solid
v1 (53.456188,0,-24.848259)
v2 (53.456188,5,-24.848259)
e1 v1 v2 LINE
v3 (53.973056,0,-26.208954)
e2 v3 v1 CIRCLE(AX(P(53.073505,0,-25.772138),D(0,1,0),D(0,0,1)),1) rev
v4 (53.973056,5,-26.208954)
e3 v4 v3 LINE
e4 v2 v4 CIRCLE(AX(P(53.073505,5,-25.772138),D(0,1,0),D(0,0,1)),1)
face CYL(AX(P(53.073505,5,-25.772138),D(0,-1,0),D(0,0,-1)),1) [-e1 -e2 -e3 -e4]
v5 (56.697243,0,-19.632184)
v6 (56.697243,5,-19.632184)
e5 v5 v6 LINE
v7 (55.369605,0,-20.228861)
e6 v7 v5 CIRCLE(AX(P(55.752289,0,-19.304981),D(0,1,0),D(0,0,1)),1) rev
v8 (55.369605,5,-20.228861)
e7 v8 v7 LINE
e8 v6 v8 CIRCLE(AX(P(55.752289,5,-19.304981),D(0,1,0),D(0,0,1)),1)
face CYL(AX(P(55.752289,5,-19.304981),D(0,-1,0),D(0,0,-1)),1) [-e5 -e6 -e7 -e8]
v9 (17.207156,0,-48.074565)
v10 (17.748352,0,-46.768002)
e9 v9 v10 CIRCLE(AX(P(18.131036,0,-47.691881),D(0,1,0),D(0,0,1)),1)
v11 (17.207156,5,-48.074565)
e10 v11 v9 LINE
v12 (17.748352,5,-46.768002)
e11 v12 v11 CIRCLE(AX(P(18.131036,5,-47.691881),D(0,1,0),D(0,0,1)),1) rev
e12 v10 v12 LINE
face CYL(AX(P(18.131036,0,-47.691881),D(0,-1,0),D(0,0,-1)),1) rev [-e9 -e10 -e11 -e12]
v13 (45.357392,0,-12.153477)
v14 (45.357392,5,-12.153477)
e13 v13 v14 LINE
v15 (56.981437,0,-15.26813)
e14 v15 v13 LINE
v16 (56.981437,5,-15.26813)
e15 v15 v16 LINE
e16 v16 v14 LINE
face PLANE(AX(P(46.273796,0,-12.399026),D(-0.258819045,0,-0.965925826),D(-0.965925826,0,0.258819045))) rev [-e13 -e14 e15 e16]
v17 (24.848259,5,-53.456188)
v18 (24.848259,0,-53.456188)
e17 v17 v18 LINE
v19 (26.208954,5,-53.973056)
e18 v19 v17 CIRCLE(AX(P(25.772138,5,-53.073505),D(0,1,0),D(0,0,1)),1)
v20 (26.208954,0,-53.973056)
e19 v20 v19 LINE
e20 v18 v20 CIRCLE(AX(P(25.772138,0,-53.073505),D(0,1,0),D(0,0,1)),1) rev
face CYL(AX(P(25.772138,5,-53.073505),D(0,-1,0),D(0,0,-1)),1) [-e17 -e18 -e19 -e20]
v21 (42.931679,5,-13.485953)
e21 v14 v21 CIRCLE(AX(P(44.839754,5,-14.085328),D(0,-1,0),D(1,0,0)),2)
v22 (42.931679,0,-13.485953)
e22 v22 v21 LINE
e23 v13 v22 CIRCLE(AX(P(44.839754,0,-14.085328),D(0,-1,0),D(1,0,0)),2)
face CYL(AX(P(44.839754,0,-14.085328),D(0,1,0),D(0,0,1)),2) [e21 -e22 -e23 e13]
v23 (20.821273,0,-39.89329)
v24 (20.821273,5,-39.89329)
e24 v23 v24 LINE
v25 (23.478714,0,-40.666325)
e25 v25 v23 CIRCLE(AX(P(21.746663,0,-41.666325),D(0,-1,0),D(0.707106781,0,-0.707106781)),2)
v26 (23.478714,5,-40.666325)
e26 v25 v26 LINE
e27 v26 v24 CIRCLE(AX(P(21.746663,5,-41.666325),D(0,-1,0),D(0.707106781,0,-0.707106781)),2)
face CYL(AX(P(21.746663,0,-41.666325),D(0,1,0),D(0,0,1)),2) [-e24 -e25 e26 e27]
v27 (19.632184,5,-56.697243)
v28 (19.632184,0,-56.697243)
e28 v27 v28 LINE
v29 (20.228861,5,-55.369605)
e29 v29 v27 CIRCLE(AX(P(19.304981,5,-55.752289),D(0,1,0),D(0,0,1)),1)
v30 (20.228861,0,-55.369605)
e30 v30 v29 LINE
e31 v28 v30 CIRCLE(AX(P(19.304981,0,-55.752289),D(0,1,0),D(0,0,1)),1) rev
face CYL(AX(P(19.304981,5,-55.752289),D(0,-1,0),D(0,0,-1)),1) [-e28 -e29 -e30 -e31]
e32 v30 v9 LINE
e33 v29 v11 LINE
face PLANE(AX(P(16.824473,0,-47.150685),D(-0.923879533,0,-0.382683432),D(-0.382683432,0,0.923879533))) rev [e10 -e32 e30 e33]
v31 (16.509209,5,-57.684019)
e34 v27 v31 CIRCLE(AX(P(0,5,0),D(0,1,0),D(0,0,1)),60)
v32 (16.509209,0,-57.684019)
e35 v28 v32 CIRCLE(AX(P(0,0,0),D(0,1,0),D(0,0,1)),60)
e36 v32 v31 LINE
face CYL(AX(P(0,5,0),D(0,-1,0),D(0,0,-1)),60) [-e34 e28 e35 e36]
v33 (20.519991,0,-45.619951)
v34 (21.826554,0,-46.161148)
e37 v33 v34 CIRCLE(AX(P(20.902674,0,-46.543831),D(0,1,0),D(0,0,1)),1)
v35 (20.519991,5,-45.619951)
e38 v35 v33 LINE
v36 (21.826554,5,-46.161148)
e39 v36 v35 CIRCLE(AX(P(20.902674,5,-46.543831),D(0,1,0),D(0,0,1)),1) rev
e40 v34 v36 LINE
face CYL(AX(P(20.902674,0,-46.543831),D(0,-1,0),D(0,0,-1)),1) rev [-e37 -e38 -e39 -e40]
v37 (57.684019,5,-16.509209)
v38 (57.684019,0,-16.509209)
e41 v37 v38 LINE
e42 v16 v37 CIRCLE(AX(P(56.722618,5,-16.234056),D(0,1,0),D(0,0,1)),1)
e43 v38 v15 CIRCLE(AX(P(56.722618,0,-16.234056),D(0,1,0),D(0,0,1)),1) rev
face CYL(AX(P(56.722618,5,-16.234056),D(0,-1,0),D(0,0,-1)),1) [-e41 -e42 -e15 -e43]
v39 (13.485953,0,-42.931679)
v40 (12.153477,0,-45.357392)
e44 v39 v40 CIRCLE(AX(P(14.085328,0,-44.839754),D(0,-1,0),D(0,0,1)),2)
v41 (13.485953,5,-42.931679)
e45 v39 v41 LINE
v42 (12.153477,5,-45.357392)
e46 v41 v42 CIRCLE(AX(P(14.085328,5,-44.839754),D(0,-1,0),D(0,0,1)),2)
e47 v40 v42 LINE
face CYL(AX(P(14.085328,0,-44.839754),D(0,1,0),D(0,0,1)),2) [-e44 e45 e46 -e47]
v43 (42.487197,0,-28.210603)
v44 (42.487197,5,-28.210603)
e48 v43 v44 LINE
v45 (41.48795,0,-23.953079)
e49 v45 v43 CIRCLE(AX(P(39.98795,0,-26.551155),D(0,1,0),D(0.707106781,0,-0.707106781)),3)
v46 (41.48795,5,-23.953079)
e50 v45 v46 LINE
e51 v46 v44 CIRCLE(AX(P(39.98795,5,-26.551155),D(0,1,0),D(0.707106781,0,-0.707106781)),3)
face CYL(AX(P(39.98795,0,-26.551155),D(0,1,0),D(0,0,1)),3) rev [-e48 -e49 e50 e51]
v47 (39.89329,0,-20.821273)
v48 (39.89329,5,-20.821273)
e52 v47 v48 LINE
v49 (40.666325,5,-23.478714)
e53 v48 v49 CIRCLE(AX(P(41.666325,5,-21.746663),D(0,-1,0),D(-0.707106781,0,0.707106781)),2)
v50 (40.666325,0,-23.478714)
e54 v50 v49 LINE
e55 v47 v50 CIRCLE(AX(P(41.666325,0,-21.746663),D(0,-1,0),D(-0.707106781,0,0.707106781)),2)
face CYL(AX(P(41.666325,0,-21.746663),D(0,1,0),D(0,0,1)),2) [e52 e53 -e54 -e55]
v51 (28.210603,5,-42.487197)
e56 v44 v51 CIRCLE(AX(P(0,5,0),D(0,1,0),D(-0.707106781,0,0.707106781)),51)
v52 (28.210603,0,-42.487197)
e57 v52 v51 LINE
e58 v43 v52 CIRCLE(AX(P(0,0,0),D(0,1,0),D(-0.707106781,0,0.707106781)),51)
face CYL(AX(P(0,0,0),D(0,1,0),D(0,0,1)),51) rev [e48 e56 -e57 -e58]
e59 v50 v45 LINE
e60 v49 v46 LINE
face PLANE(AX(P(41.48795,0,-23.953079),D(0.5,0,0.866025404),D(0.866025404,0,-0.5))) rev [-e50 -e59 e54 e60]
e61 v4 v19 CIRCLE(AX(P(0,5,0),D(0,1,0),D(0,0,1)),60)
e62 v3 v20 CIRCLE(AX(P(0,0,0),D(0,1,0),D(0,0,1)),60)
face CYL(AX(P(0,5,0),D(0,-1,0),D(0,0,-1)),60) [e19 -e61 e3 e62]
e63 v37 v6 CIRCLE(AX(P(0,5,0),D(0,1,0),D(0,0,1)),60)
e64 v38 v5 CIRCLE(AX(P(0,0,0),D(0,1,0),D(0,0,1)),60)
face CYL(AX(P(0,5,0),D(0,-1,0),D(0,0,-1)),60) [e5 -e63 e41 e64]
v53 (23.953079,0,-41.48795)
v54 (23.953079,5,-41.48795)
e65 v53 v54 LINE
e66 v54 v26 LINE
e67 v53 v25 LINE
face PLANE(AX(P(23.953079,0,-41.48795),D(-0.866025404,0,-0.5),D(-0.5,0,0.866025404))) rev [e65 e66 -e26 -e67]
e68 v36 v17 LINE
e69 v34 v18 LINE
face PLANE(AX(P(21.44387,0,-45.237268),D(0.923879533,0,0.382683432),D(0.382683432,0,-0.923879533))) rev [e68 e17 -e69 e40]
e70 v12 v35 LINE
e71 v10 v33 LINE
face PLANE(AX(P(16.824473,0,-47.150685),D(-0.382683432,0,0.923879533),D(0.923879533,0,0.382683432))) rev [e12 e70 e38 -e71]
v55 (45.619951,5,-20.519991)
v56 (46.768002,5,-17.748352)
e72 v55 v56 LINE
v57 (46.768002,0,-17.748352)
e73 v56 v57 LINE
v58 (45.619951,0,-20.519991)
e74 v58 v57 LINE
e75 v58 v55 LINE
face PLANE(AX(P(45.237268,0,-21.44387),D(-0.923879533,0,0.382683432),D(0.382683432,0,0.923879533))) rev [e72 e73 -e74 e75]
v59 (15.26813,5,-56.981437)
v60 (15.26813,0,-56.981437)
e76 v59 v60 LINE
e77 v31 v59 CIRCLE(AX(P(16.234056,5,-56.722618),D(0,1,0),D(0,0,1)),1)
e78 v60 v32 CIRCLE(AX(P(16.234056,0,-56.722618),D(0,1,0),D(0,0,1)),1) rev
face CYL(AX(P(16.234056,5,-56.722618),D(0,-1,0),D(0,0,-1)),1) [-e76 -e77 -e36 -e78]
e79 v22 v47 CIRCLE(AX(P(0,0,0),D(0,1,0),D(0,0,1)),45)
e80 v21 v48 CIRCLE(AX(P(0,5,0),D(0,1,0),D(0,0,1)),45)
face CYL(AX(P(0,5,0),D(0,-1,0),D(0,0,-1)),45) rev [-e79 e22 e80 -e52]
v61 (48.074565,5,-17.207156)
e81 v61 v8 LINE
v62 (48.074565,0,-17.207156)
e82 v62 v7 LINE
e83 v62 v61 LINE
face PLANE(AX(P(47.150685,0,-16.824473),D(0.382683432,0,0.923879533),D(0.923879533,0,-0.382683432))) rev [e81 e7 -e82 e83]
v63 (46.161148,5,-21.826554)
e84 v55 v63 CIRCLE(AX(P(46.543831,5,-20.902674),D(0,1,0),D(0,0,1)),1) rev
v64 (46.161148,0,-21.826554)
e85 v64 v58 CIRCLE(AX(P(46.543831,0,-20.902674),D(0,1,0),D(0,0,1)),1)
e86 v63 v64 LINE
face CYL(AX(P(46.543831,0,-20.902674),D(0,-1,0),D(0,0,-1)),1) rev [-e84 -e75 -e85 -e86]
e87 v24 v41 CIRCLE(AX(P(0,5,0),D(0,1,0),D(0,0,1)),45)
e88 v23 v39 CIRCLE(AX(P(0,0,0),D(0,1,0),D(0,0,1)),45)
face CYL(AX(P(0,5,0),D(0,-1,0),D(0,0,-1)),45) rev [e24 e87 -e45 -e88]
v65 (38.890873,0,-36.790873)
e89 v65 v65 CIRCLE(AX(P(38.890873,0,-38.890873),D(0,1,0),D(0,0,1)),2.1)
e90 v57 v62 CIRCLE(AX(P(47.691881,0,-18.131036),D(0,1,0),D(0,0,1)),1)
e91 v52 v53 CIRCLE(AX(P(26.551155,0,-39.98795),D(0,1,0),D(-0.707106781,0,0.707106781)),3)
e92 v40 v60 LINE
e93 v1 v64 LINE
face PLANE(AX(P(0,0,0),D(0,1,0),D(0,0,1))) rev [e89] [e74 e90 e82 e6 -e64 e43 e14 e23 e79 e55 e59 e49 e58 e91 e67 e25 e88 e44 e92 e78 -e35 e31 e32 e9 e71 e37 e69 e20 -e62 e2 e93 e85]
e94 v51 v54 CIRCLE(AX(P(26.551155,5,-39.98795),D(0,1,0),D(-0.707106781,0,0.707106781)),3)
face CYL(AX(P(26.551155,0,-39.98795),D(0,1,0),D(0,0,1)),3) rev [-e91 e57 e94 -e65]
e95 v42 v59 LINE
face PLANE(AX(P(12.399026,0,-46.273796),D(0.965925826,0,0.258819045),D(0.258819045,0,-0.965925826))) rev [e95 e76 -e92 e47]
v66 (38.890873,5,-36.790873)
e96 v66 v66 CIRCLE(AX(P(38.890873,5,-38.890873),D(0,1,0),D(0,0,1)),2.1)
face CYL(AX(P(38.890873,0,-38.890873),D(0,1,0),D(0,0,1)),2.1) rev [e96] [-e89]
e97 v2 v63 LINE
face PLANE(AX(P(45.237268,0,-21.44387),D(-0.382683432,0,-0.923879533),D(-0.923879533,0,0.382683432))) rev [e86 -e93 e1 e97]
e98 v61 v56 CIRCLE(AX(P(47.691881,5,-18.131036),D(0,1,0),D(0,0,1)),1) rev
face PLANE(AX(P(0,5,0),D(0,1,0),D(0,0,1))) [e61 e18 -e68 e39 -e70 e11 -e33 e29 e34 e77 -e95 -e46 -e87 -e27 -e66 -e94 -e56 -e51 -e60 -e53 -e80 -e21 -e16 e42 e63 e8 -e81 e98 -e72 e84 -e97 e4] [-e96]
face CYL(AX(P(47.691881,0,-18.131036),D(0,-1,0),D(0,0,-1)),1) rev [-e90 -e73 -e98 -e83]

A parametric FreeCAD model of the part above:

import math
import FreeCAD as App
import Part
import Sketcher
from FreeCAD import Vector
Q = App.Units.Quantity


def edges_at(feature, points):
    """Names of the edges that pass closest to the given points."""
    edges = feature.Shape.Edges
    near = lambda p: min(range(len(edges)), key=lambda i: edges[i].distToShape(Part.Vertex(*p))[0])
    return sorted({f"Edge{near(p) + 1}" for p in points})

doc = App.newDocument("Part")
body = doc.addObject("PartDesign::Body", "Body")

sketch1 = doc.addObject("Sketcher::SketchObject", "Sketch")
body.addObject(sketch1)
sketch1.AttachmentSupport = (doc.XZ_Plane, [""])
sketch1.MapMode = "FlatFace"
sketch1.addGeometry([
    Part.Circle(Vector(0, 0, 0), Vector(0, 0, 1), 60),
    Part.Circle(Vector(0, 0, 0), Vector(0, 0, 1), 45),
], False)
sketch1.addConstraint([
    Sketcher.Constraint("Coincident", 0, 3, -1, 1),
    Sketcher.Constraint("Coincident", 1, 3, -1, 1),
    Sketcher.Constraint("Diameter", 0, 120.0),
    Sketcher.Constraint("Diameter", 1, 90.0),
])
pad1 = doc.addObject("PartDesign::Pad", "Pad")
body.addObject(pad1)
pad1.Profile = sketch1
pad1.Length = 5
pad1.Reversed = True

sketch2 = doc.addObject("Sketcher::SketchObject", "Sketch001")
body.addObject(sketch2)
sketch2.AttachmentSupport = (doc.XZ_Plane, [""])
sketch2.MapMode = "FlatFace"
sketch2.AttachmentOffset = App.Placement(Vector(0, 0, -5), App.Rotation())
sketch2.addGeometry([
    Part.LineSegment(Vector(12.153477, -45.357392, 0), Vector(12.399026, -46.273796, 0)),
    Part.ArcOfCircle(Part.Circle(Vector(9.501249, -47.050253, 0), Vector(0, 0, 1), 3), math.radians(-78.583322), math.radians(15)),
    Part.ArcOfCircle(Part.Circle(Vector(0, 0, 0), Vector(0, 0, 1), 51), math.radians(-101.416678), math.radians(-78.583322)),
    Part.ArcOfCircle(Part.Circle(Vector(-9.501249, -47.050253, 0), Vector(0, 0, 1), 3), math.radians(165), math.radians(258.583322)),
    Part.LineSegment(Vector(-12.399026, -46.273796, 0), Vector(-12.153477, -45.357392, 0)),
    Part.ArcOfCircle(Part.Circle(Vector(-14.085328, -44.839754, 0), Vector(0, 0, 1), 2), math.radians(-15), math.radians(72.561145)),
    Part.LineSegment(Vector(-13.485953, -42.931679, 0), Vector(13.485953, -42.931679, 0)),
    Part.ArcOfCircle(Part.Circle(Vector(14.085328, -44.839754, 0), Vector(0, 0, 1), 2), math.radians(107.438855), math.radians(195)),
], False)
sketch2.addConstraint([
    Sketcher.Constraint("Tangent", 0, 2, 1, 2),
    Sketcher.Constraint("Tangent", 1, 1, 2, 2),
    Sketcher.Constraint("Tangent", 2, 1, 3, 2),
    Sketcher.Constraint("Tangent", 3, 1, 4, 1),
    Sketcher.Constraint("Tangent", 4, 2, 5, 1),
    Sketcher.Constraint("Coincident", 5, 2, 6, 1),
    Sketcher.Constraint("Coincident", 6, 2, 7, 1),
    Sketcher.Constraint("Tangent", 7, 2, 0, 1),
    Sketcher.Constraint("Horizontal", 6),
    Sketcher.Constraint("Coincident", 2, 3, -1, 1),
    Sketcher.Constraint("Equal", 1, 3),
    Sketcher.Constraint("Equal", 5, 7),
    Sketcher.Constraint("Symmetric", 5, 3, 7, 3, -2),
    Sketcher.Constraint("Horizontal", 1, 3, 3, 3),
    Sketcher.Constraint("Radius", 1, 3.0),
    Sketcher.Constraint("Radius", 2, 51.0),
    Sketcher.Constraint("Radius", 5, 2.0),
    Sketcher.Constraint("Angle", 0, Q("-75 deg")),
    Sketcher.Constraint("DistanceY", 3, 3, 5, 3, 2.210499),
    Sketcher.Constraint("DistanceX", 3, 3, 6, 2, 22.987201),
    Sketcher.Constraint("DistanceX", 1, 1, 7, 2, 2.0584),
])
pocket1 = doc.addObject("PartDesign::Pocket", "Pocket")
body.addObject(pocket1)
pocket1.Profile = sketch2
pocket1.Type = "ThroughAll"
pocket1.Reversed = True
doc.recompute()

polarpattern = doc.addObject("PartDesign::PolarPattern", "PolarPattern")
body.addObject(polarpattern)
polarpattern.Originals = [pocket1]
polarpattern.Axis = (doc.Y_Axis, [""])
polarpattern.Angle = 360
polarpattern.Occurrences = 8
body.Tip = polarpattern

sketch3 = doc.addObject("Sketcher::SketchObject", "Sketch002")
body.addObject(sketch3)
sketch3.AttachmentSupport = (doc.XZ_Plane, [""])
sketch3.MapMode = "FlatFace"
sketch3.AttachmentOffset = App.Placement(Vector(0, 0, -5), App.Rotation())
sketch3.addGeometry(Part.Circle(Vector(38.890873, -38.890873, 0), Vector(0, 0, 1), 2.1), False)
sketch3.addConstraint([
    Sketcher.Constraint("Diameter", 0, 4.2),
    Sketcher.Constraint("DistanceX", -1, 1, 0, 3, 38.890873),
    Sketcher.Constraint("DistanceY", 0, 3, -1, 1, 38.890873),
])
pocket2 = doc.addObject("PartDesign::Pocket", "Pocket001")
body.addObject(pocket2)
pocket2.Profile = sketch3
pocket2.Type = "ThroughAll"
pocket2.Reversed = True
doc.recompute()

polarpattern2 = doc.addObject("PartDesign::PolarPattern", "PolarPattern001")
body.addObject(polarpattern2)
polarpattern2.Originals = [pocket2]
polarpattern2.Axis = (doc.Y_Axis, [""])
polarpattern2.Angle = 360
polarpattern2.Occurrences = 4
body.Tip = polarpattern2

sketch4 = doc.addObject("Sketcher::SketchObject", "Sketch003")
body.addObject(sketch4)
sketch4.AttachmentSupport = (doc.XZ_Plane, [""])
sketch4.MapMode = "FlatFace"
sketch4.AttachmentOffset = App.Placement(Vector(0, 0, -5), App.Rotation())
sketch4.addGeometry([
    Part.LineSegment(Vector(-77.978, -77.978, 0), Vector(-77.978, 77.978, 0)),
    Part.LineSegment(Vector(-77.978, 77.978, 0), Vector(77.978, 77.978, 0)),
    Part.LineSegment(Vector(77.978, 77.978, 0), Vector(77.978, -20.894142, 0)),
    Part.LineSegment(Vector(77.978, -20.894142, 0), Vector(0, 0, 0)),
    Part.LineSegment(Vector(0, 0, 0), Vector(20.894142, -77.978, 0)),
    Part.LineSegment(Vector(20.894142, -77.978, 0), Vector(-77.978, -77.978, 0)),
    Part.LineSegment(Vector(77.978, -77.978, 0), Vector(39.367643, -77.978, 0)),
    Part.LineSegment(Vector(39.367643, -77.978, 0), Vector(77.978, -39.367643, 0)),
    Part.LineSegment(Vector(77.978, -39.367643, 0), Vector(77.978, -77.978, 0)),
], False)
sketch4.addConstraint([
    Sketcher.Constraint("Coincident", 0, 2, 1, 1),
    Sketcher.Constraint("Coincident", 1, 2, 2, 1),
    Sketcher.Constraint("Coincident", 2, 2, 3, 1),
    Sketcher.Constraint("Coincident", 3, 2, 4, 1),
    Sketcher.Constraint("Coincident", 4, 2, 5, 1),
    Sketcher.Constraint("Coincident", 5, 2, 0, 1),
    Sketcher.Constraint("Coincident", 6, 2, 7, 1),
    Sketcher.Constraint("Coincident", 7, 2, 8, 1),
    Sketcher.Constraint("Coincident", 8, 2, 6, 1),
    Sketcher.Constraint("Vertical", 0),
    Sketcher.Constraint("Horizontal", 1),
    Sketcher.Constraint("Vertical", 2),
    Sketcher.Constraint("Horizontal", 5),
    Sketcher.Constraint("Horizontal", 6),
    Sketcher.Constraint("Vertical", 8),
    Sketcher.Constraint("Coincident", 3, 2, -1, 1),
    Sketcher.Constraint("Symmetric", 1, 2, 5, 2, -1, 1),
    Sketcher.Constraint("Symmetric", 0, 2, 8, 2, -1, 1),
    Sketcher.Constraint("Equal", 1, 0),
    Sketcher.Constraint("Equal", 5, 2),
    Sketcher.Constraint("Equal", 6, 8),
    Sketcher.Constraint("Angle", 3, Q("165 deg")),
    Sketcher.Constraint("DistanceX", 1, 1, 1, 2, 155.956),
    Sketcher.Constraint("DistanceX", 4, 2, 6, 2, 18.473501),
])
pocket3 = doc.addObject("PartDesign::Pocket", "Pocket002")
body.addObject(pocket3)
pocket3.Profile = sketch4
pocket3.Type = "ThroughAll"
pocket3.Reversed = True
doc.recompute()

fillet = doc.addObject("PartDesign::Fillet", "Fillet")
body.addObject(fillet)
fillet.Base = (pocket3, edges_at(pocket3, [(57.956, 2.5, -15.529), (15.529, 2.5, -57.956)]))
fillet.Radius = 1

sketch5 = doc.addObject("Sketcher::SketchObject", "Sketch004")
body.addObject(sketch5)
sketch5.AttachmentSupport = (doc.XZ_Plane, [""])
sketch5.MapMode = "FlatFace"
sketch5.AttachmentOffset = App.Placement(Vector(0, 0, -5), App.Rotation())
sketch5.addGeometry([
    Part.LineSegment(Vector(16.824473, -47.150685, 0), Vector(21.44387, -45.237268, 0)),
    Part.LineSegment(Vector(21.44387, -45.237268, 0), Vector(25.270705, -54.476063, 0)),
    Part.LineSegment(Vector(25.270705, -54.476063, 0), Vector(20.651307, -56.389481, 0)),
    Part.LineSegment(Vector(20.651307, -56.389481, 0), Vector(16.824473, -47.150685, 0)),
], False)
sketch5.addConstraint([
    Sketcher.Constraint("Coincident", 0, 2, 1, 1),
    Sketcher.Constraint("Coincident", 1, 2, 2, 1),
    Sketcher.Constraint("Coincident", 2, 2, 3, 1),
    Sketcher.Constraint("Coincident", 3, 2, 0, 1),
    Sketcher.Constraint("Perpendicular", 0, 1),
    Sketcher.Constraint("Perpendicular", 1, 2),
    Sketcher.Constraint("Perpendicular", 2, 3),
    Sketcher.Constraint("Distance", 0, 5.0),
    Sketcher.Constraint("Distance", 1, 10.0),
    Sketcher.Constraint("Angle", 0, Q("22.5 deg")),
    Sketcher.Constraint("DistanceX", -1, 1, 0, 2, 21.44387),
    Sketcher.Constraint("DistanceY", 0, 2, -1, 1, 45.237268),
])
pocket4 = doc.addObject("PartDesign::Pocket", "Pocket003")
body.addObject(pocket4)
pocket4.Profile = sketch5
pocket4.Type = "ThroughAll"
pocket4.Reversed = True
doc.recompute()

fillet2 = doc.addObject("PartDesign::Fillet", "Fillet001")
body.addObject(fillet2)
fillet2.Base = (pocket4, edges_at(pocket4, [
    (20.631, 2.5, -56.341),
    (25.251, 2.5, -54.428),
    (16.824, 2.5, -47.151),
    (21.444, 2.5, -45.237),
]))
fillet2.Radius = 1
doc.recompute()

polarpattern3 = doc.addObject("PartDesign::PolarPattern", "PolarPattern002")
body.addObject(polarpattern3)
polarpattern3.Originals = [pocket4]
polarpattern3.Axis = (doc.Y_Axis, [""])
polarpattern3.Angle = 45
polarpattern3.Occurrences = 2
polarpattern3.Reversed = True
body.Tip = polarpattern3
doc.recompute()

fillet3 = doc.addObject("PartDesign::Fillet", "Fillet002")
body.addObject(fillet3)
fillet3.Base = (polarpattern3, edges_at(polarpattern3, [
    (54.428, 2.5, -25.251),
    (56.341, 2.5, -20.631),
    (45.237, 2.5, -21.444),
    (47.151, 2.5, -16.824),
]))
fillet3.Radius = 1

doc.recompute()
